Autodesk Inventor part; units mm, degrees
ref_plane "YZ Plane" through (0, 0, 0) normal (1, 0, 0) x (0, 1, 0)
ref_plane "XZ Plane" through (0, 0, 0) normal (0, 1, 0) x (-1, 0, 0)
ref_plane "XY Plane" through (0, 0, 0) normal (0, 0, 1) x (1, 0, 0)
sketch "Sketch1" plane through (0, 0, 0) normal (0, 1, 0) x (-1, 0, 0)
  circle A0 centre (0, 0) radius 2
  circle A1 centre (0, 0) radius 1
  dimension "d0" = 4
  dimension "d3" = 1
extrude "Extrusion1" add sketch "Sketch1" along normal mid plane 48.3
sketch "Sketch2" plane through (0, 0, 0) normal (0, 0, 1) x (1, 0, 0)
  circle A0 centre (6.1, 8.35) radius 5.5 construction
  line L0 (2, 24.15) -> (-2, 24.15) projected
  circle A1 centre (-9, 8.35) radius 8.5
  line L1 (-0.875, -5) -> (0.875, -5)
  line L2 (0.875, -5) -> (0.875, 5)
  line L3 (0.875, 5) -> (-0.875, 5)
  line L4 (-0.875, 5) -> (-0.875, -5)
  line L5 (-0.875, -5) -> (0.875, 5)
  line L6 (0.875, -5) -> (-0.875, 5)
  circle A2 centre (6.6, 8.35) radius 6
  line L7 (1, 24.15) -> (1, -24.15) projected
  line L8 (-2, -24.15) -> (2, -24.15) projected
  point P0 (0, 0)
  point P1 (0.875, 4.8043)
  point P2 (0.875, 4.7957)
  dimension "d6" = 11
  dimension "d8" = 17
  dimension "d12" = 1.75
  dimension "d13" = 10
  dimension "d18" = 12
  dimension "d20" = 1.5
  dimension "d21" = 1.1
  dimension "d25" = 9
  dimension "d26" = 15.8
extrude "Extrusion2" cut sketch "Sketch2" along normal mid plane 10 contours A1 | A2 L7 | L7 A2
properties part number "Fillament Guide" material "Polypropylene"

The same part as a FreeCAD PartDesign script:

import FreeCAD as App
import Part
import Sketcher

V = App.Vector
Q = App.Units.Quantity

doc = App.newDocument("Part")
body = doc.addObject("PartDesign::Body", "Body")

sketch1 = body.newObject("Sketcher::SketchObject", "Sketch")
sketch1.AttachmentSupport = (doc.getObject("XZ_Plane"), [""])
sketch1.MapMode = "FlatFace"
sketch1.addGeometry(Part.Circle(V(0, 0, 0), V(0, 0, 1), 2), False)
sketch1.addGeometry(Part.Circle(V(0, 0, 0), V(0, 0, 1), 1), False)
sketch1.addConstraint(Sketcher.Constraint("Coincident", 0, 3, -1, 1))
sketch1.addConstraint(Sketcher.Constraint("Coincident", 1, 3, -1, 1))
sketch1.addConstraint(Sketcher.Constraint("Diameter", 0, Q("4 mm")))
sketch1.addConstraint(Sketcher.Constraint("Diameter", 1, Q("2 mm")))
pad1 = body.newObject("PartDesign::Pad", "Pad")
pad1.Profile = sketch1
pad1.Length = 48.3
pad1.Midplane = True

sketch2 = body.newObject("Sketcher::SketchObject", "Sketch001")
sketch2.AttachmentSupport = (doc.getObject("XY_Plane"), [""])
sketch2.MapMode = "FlatFace"
sketch2.addGeometry(Part.Circle(V(-9, 8, 0), V(0, 0, 1), 8), False)
sketch2.addGeometry(Part.Circle(V(7, 8, 0), V(0, 0, 1), 6), False)
sketch2.addConstraint(Sketcher.Constraint("Horizontal", 0, 3, 1, 3))
sketch2.addConstraint(Sketcher.Constraint("Diameter", 0, Q("17 mm")))
sketch2.addConstraint(Sketcher.Constraint("Diameter", 1, Q("12 mm")))
sketch2.addConstraint(Sketcher.Constraint("DistanceX", 0, 3, -1, 1, Q("9 mm")))
sketch2.addConstraint(Sketcher.Constraint("DistanceX", -1, 1, 1, 3, Q("6.6 mm")))
sketch2.addConstraint(Sketcher.Constraint("DistanceY", -1, 1, 0, 3, Q("8.35 mm")))
pocket1 = body.newObject("PartDesign::Pocket", "Pocket")
pocket1.Profile = sketch2
pocket1.Length = 10
pocket1.Midplane = True

doc.recompute()
